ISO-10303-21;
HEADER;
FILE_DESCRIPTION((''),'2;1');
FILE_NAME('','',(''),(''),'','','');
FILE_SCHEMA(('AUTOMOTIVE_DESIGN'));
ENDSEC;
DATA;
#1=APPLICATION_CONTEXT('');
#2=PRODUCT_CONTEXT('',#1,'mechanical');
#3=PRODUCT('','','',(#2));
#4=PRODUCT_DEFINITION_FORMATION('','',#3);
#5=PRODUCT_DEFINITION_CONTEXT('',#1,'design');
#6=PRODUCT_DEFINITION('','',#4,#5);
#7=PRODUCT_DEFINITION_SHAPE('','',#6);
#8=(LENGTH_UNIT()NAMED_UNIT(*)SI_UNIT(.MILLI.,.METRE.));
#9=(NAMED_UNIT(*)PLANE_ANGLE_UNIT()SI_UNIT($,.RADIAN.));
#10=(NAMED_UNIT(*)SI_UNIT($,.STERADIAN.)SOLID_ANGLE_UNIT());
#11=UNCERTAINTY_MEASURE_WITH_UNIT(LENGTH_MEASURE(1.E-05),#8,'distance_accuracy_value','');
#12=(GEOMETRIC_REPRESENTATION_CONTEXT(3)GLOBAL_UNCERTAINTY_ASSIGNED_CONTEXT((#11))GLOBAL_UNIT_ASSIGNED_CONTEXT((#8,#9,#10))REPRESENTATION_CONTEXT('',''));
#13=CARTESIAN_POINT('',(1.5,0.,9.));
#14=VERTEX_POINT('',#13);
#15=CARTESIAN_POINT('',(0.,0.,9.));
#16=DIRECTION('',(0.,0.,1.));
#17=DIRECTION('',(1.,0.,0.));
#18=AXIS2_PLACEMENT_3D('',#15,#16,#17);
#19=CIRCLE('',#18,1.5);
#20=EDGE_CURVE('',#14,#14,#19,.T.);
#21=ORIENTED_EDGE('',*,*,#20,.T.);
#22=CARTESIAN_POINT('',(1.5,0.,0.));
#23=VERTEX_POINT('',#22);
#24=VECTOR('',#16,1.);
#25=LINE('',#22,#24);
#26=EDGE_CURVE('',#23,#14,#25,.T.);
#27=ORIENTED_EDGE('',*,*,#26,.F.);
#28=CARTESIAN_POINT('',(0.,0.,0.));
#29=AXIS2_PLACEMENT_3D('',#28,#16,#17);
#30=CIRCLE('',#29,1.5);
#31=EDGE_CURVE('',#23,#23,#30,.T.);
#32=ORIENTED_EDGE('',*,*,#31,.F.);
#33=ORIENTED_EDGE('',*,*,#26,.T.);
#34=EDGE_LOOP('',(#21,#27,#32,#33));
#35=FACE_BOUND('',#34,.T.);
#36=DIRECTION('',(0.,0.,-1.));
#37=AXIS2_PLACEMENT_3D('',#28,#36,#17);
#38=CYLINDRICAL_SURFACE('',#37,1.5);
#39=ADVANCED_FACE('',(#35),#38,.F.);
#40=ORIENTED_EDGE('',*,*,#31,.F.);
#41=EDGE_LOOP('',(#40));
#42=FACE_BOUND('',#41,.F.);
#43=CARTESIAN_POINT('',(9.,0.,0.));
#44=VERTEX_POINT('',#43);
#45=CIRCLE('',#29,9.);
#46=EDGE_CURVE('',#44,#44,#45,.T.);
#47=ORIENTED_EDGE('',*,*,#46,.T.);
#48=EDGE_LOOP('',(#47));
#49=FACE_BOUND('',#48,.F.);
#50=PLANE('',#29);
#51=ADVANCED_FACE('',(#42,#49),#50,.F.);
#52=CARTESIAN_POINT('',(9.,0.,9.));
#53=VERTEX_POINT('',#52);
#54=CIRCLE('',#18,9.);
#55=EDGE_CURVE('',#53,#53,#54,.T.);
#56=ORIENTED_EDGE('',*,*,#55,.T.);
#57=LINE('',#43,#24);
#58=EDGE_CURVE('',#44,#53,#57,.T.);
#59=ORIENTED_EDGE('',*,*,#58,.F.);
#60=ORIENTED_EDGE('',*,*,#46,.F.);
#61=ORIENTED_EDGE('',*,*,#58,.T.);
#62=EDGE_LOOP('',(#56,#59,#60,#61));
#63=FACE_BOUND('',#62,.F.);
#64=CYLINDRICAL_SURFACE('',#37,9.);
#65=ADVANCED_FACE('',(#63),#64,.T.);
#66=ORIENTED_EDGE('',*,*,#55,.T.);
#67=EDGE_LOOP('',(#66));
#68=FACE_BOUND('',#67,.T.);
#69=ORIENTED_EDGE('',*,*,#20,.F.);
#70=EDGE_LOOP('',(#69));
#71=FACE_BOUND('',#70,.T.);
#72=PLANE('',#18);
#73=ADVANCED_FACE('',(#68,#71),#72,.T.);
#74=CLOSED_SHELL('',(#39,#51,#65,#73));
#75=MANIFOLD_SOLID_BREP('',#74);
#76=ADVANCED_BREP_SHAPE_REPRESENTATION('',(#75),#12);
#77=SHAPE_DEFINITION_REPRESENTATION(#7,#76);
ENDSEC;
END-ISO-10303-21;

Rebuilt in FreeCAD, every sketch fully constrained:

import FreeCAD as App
import Part
import Sketcher

doc = App.newDocument("Part")
params = doc.addObject("Spreadsheet::Sheet", "Params")
for row, (alias, value) in enumerate([
    ("sketch1_diameter", "18 mm"),
    ("sketch1_diameter2", "3 mm"),
    ("pad1_length", "9 mm"),
], start=1):
    params.set(f"A{row}", alias)
    params.set(f"B{row}", "=" + value)
    params.setAlias(f"B{row}", alias)

body = doc.addObject("PartDesign::Body", "Body")

# Sketch on XY plane
sketch1 = doc.addObject("Sketcher::SketchObject", "Sketch")
body.addObject(sketch1)
sketch1.AttachmentSupport = (doc.XY_Plane, [""])
sketch1.MapMode = "FlatFace"
sketch1.addGeometry([
    Part.Circle(App.Vector(0, 0, 0), App.Vector(0, 0, 1), 9),
    Part.Circle(App.Vector(0, 0, 0), App.Vector(0, 0, 1), 1.5),
], False)
sketch1.addConstraint([
    Sketcher.Constraint("Coincident", 0, 3, -1, 1),
    Sketcher.Constraint("Coincident", 1, 3, -1, 1),
    Sketcher.Constraint("Diameter", 0, 18.0),
    Sketcher.Constraint("Diameter", 1, 3.0),
])
sketch1.setExpression("Constraints[2]", "Params.sketch1_diameter")
sketch1.setExpression("Constraints[3]", "Params.sketch1_diameter2")
pad1 = doc.addObject("PartDesign::Pad", "Pad")
body.addObject(pad1)
pad1.Profile = sketch1
pad1.setExpression("Length", "Params.pad1_length")

doc.recompute()
